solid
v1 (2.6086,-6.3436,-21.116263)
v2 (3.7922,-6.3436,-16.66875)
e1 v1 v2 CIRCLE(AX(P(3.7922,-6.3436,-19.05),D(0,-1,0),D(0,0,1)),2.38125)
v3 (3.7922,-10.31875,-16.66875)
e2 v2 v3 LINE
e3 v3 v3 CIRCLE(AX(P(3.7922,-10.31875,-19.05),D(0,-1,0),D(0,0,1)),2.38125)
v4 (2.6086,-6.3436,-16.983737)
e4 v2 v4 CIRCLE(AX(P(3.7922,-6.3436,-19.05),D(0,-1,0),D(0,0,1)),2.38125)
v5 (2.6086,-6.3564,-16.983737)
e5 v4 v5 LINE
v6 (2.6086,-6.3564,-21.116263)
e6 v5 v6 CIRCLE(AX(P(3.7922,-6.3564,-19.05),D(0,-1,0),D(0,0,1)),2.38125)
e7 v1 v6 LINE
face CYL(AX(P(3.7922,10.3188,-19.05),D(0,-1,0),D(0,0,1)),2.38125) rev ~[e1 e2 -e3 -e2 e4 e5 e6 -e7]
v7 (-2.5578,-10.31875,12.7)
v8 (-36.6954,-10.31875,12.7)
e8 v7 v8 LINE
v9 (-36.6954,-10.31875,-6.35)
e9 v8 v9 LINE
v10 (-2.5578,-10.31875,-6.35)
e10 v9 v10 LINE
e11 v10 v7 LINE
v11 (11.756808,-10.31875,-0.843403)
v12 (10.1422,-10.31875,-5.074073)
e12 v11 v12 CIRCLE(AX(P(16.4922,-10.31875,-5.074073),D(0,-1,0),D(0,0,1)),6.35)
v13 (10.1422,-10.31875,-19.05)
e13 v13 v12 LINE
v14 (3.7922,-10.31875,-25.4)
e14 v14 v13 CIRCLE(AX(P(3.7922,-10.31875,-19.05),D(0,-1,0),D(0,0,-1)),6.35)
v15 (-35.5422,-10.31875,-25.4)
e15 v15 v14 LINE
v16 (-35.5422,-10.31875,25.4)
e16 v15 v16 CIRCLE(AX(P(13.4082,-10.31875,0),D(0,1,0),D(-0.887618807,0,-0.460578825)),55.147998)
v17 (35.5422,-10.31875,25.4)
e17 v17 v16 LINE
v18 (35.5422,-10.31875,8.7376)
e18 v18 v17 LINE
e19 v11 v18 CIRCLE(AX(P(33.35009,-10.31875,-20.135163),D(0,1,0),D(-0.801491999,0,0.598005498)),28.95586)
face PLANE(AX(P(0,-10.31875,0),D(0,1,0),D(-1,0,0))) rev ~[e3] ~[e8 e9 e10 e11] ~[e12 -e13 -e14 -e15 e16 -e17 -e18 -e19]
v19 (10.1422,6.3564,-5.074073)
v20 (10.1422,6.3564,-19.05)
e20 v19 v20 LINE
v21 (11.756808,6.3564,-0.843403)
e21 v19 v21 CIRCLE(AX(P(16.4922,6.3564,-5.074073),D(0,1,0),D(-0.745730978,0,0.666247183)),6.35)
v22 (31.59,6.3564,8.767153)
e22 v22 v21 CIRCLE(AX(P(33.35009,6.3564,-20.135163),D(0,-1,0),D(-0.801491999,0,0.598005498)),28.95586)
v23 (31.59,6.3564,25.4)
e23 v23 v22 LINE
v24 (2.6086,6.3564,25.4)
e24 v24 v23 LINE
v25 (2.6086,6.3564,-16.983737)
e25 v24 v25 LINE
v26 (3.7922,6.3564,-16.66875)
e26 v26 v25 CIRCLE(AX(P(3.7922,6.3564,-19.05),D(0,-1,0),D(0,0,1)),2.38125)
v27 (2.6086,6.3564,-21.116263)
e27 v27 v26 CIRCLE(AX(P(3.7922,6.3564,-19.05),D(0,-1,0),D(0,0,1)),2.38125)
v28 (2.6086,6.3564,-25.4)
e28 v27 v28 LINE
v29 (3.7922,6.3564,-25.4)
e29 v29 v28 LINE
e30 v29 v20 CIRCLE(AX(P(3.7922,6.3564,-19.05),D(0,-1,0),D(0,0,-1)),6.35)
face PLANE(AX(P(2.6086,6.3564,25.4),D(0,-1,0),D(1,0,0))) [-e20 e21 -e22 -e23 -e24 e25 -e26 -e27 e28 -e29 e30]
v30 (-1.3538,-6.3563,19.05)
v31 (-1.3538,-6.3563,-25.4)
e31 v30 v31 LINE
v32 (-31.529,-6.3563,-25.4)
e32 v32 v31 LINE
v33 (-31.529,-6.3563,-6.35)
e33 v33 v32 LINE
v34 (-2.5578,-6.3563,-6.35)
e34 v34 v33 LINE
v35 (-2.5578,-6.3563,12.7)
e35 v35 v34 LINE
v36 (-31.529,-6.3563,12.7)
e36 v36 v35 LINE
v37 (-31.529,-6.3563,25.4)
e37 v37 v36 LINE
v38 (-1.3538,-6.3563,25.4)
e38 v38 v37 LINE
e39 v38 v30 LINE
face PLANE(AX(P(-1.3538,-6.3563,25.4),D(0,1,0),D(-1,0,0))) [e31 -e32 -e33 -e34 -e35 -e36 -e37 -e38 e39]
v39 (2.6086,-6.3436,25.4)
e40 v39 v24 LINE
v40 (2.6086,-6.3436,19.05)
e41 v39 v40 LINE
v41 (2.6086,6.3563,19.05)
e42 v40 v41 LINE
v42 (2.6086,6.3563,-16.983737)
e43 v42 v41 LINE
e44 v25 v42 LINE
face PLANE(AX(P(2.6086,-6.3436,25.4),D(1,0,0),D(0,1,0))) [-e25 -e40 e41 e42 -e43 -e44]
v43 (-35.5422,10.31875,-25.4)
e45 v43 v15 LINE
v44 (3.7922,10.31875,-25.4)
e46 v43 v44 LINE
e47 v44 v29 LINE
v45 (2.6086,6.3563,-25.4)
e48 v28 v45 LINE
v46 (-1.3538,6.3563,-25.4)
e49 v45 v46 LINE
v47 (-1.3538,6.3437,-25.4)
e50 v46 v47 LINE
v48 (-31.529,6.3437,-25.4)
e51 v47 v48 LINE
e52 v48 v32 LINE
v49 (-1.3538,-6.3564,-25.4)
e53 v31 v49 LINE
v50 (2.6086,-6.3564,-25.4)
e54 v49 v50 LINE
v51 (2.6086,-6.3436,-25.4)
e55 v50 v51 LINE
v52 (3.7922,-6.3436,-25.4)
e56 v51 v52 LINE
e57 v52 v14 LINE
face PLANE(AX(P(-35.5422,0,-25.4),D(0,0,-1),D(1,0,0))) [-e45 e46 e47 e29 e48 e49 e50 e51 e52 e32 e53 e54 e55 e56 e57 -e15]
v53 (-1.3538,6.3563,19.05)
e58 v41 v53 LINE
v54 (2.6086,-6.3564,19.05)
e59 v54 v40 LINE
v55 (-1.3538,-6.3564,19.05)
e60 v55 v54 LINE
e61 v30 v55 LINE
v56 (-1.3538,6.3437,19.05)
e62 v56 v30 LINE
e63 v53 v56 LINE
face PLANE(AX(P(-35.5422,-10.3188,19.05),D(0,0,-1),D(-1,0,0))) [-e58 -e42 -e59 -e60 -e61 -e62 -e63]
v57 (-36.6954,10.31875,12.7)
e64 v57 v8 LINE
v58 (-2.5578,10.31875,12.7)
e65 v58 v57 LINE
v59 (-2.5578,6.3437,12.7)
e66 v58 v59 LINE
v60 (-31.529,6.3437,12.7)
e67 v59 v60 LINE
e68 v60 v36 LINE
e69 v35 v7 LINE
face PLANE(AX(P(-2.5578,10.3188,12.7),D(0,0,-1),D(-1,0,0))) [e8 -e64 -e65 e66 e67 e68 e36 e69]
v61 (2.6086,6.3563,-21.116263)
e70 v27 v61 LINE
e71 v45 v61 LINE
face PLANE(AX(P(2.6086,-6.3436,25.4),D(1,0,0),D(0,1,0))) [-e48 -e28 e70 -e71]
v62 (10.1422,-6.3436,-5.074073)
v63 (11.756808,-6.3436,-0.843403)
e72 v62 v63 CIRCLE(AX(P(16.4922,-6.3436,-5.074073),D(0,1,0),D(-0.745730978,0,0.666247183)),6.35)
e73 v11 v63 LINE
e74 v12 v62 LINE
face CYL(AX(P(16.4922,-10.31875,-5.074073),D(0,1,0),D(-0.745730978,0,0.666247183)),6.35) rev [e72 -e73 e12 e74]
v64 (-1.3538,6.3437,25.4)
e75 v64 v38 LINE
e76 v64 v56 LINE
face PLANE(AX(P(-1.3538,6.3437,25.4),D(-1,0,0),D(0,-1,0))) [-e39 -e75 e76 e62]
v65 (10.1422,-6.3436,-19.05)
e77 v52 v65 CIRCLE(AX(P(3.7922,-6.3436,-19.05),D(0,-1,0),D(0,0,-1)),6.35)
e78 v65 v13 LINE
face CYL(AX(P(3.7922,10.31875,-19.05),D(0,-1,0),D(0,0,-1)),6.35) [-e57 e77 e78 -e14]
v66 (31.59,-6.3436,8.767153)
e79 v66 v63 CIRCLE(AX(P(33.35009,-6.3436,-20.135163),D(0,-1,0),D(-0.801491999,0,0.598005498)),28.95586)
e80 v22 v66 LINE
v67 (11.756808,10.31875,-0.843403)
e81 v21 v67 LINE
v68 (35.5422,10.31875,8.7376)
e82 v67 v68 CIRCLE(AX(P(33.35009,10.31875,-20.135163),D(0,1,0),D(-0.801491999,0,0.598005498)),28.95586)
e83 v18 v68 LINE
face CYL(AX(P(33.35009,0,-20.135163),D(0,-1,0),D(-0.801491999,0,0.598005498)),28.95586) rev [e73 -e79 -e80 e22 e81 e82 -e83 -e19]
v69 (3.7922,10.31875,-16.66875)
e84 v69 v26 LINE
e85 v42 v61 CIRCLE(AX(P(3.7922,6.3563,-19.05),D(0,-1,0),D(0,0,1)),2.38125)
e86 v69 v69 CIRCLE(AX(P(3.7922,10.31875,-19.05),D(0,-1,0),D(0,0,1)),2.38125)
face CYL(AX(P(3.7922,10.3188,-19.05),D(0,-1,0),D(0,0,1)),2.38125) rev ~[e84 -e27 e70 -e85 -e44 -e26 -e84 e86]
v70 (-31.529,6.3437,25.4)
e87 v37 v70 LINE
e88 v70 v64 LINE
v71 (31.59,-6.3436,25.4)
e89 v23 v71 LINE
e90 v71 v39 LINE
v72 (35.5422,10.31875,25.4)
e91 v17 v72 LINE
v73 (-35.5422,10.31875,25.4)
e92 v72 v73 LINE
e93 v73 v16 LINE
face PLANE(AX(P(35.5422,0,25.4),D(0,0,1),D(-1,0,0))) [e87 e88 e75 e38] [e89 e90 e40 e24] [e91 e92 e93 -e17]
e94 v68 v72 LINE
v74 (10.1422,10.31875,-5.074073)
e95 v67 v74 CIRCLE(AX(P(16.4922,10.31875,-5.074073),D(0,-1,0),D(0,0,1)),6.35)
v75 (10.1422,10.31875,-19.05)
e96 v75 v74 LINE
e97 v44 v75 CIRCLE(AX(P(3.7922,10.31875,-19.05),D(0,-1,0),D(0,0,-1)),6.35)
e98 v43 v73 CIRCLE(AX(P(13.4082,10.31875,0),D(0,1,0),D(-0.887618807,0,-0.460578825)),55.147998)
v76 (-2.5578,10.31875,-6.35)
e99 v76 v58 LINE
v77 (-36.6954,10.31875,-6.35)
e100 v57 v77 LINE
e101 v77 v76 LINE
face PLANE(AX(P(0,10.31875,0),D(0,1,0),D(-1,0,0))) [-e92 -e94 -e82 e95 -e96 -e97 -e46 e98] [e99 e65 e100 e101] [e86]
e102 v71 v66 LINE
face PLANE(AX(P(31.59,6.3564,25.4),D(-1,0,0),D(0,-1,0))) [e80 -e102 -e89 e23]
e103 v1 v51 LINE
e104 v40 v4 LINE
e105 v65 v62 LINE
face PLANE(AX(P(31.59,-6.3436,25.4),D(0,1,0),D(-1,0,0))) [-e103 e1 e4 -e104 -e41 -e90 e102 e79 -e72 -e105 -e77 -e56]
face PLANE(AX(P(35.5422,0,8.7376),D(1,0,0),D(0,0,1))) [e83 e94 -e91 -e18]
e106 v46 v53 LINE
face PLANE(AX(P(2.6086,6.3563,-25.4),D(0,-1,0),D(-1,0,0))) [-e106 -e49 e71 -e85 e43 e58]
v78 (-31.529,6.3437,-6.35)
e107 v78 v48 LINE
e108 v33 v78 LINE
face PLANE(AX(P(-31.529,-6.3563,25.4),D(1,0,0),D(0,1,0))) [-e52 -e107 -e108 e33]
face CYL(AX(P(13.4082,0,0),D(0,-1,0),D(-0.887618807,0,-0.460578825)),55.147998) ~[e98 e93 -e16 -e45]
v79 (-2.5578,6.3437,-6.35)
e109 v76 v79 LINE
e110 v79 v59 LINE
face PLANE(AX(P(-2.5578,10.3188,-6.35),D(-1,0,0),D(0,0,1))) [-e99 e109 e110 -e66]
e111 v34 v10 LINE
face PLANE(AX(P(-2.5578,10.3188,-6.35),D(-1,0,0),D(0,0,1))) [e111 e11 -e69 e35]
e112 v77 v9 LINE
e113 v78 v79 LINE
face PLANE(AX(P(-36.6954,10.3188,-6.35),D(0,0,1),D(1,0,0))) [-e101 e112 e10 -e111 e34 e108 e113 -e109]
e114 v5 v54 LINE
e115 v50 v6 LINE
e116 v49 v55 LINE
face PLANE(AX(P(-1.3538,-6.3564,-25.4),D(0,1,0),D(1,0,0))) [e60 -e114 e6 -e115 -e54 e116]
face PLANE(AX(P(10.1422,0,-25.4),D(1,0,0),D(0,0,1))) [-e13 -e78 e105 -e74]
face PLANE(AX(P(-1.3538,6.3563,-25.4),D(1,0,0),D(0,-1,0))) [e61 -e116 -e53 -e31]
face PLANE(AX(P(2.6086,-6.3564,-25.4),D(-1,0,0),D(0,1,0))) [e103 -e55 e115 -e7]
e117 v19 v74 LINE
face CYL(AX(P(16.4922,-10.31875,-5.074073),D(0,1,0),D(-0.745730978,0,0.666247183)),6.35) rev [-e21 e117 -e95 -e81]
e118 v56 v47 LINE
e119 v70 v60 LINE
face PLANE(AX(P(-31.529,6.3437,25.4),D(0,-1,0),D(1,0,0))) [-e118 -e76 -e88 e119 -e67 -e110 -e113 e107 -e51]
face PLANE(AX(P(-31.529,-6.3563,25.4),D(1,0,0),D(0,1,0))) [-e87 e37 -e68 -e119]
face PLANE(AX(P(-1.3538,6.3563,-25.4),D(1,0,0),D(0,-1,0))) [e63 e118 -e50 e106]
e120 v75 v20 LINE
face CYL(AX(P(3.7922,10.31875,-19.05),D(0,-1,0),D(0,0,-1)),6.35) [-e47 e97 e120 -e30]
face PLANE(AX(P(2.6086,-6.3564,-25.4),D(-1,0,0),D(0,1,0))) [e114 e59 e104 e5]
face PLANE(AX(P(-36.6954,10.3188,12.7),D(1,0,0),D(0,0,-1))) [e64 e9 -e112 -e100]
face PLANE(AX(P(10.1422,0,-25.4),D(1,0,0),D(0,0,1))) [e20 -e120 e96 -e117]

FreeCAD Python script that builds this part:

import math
import FreeCAD as App
import Part
import Sketcher
from FreeCAD import Vector
Q = App.Units.Quantity


def edges_at(feature, points):
    """Names of the edges that pass closest to the given points."""
    edges = feature.Shape.Edges
    near = lambda p: min(range(len(edges)), key=lambda i: edges[i].distToShape(Part.Vertex(*p))[0])
    return sorted({f"Edge{near(p) + 1}" for p in points})


def add_polygon(sketch, points):
    """Adds a closed chain of lines whose ends are joined by coincident constraints."""
    first, n = sketch.GeometryCount, len(points)
    for a, b in zip(points, points[1:] + points[:1]):
        sketch.addGeometry(Part.LineSegment(App.Vector(*a, 0), App.Vector(*b, 0)), False)
    for i in range(n):
        sketch.addConstraint(Sketcher.Constraint("Coincident", first + i, 2, first + (i + 1) % n, 1))

doc = App.newDocument("Part")
body = doc.addObject("PartDesign::Body", "Body")

sketch1 = body.newObject("Sketcher::SketchObject", "Sketch")
sketch1.AttachmentSupport = (doc.getObject("XZ_Plane"), [""])
sketch1.MapMode = "FlatFace"
sketch1.addGeometry([
    Part.LineSegment(Vector(-35.5422, 25.4, 0), Vector(35.5422, 25.4, 0)),
    Part.LineSegment(Vector(35.5422, 25.4, 0), Vector(35.5422, 8.7376, 0)),
    Part.ArcOfCircle(Part.Circle(Vector(33.3502, -20.1353, 0), Vector(0, 0, 1), 28.95603), math.radians(85.658493), math.radians(143.272728)),
    Part.LineSegment(Vector(10.1422, -2.8194, 0), Vector(10.1422, -25.4, 0)),
    Part.LineSegment(Vector(10.1422, -25.4, 0), Vector(-35.5422, -25.4, 0)),
    Part.ArcOfCircle(Part.Circle(Vector(13.4082, 0, 0), Vector(0, 0, 1), 55.147998), math.radians(152.575536), math.radians(207.424464)),
], False)
sketch1.addConstraint([
    Sketcher.Constraint("Coincident", 0, 2, 1, 1),
    Sketcher.Constraint("Coincident", 1, 2, 2, 1),
    Sketcher.Constraint("Coincident", 2, 2, 3, 1),
    Sketcher.Constraint("Coincident", 3, 2, 4, 1),
    Sketcher.Constraint("Coincident", 4, 2, 5, 2),
    Sketcher.Constraint("Coincident", 5, 1, 0, 1),
    Sketcher.Constraint("Horizontal", 0),
    Sketcher.Constraint("Vertical", 1),
    Sketcher.Constraint("Vertical", 3),
    Sketcher.Constraint("Horizontal", 4),
    Sketcher.Constraint("Symmetric", 0, 2, 4, 2, -1, 1),
    Sketcher.Constraint("PointOnObject", 5, 3, -1),
    Sketcher.Constraint("Radius", 2, Q("1.14 in")),
    Sketcher.Constraint("DistanceY", 3, 2, 0, 2, Q("2 in")),
    Sketcher.Constraint("DistanceY", 1, 2, 1, 1, Q("0.656 in")),
    Sketcher.Constraint("DistanceY", 3, 2, 3, 1, Q("0.889 in")),
    Sketcher.Constraint("DistanceX", 0, 1, 0, 2, Q("2.7986 in")),
    Sketcher.Constraint("DistanceX", 4, 2, 4, 1, Q("1.7986 in")),
    Sketcher.Constraint("Radius", 5, Q("55.148 mm")),
])
pad1 = body.newObject("PartDesign::Pad", "Pad")
pad1.Profile = sketch1
pad1.Length = Q("0.8125 in")
pad1.Midplane = True
doc.recompute()

fillet = body.newObject("PartDesign::Fillet", "Fillet")
fillet.Base = (pad1, edges_at(pad1, [(10.142, 0, -25.4), (10.142, 0, -2.819)]))
fillet.Radius = Q("0.25 in")

sketch2 = body.newObject("Sketcher::SketchObject", "Sketch001")
sketch2.AttachmentSupport = (doc.getObject("XZ_Plane"), [""])
sketch2.MapMode = "FlatFace"
sketch2.AttachmentOffset = App.Placement(Vector(0, 0, -0.406252 * 25.4), App.Rotation())
add_polygon(sketch2, [(-2.5578, -6.35), (-36.6954, -6.35), (-36.6954, 12.7), (-2.5578, 12.7)])
sketch2.addConstraint([
    Sketcher.Constraint("Horizontal", 0),
    Sketcher.Constraint("Vertical", 1),
    Sketcher.Constraint("Horizontal", 2),
    Sketcher.Constraint("Vertical", 3),
    Sketcher.Constraint("DistanceY", 1, 1, 1, 2, Q("0.75 in")),
    Sketcher.Constraint("DistanceX", 0, 2, 0, 1, Q("1.344 in")),
    Sketcher.Constraint("DistanceY", -1, 1, 1, 2, Q("0.5 in")),
    Sketcher.Constraint("DistanceX", 0, 2, -1, 1, Q("1.4447 in")),
])
pocket1 = body.newObject("PartDesign::Pocket", "Pocket")
pocket1.Profile = sketch2
pocket1.Type = "ThroughAll"
pocket1.Reversed = True

sketch3 = body.newObject("Sketcher::SketchObject", "Sketch002")
sketch3.AttachmentSupport = (doc.getObject("XY_Plane"), [""])
sketch3.MapMode = "FlatFace"
sketch3.AttachmentOffset = App.Placement(Vector(0, 0, 1 * 25.4), App.Rotation())
add_polygon(sketch3, [(-1.3538, 6.3437), (-31.529, 6.3437), (-31.529, -6.3563), (-1.3538, -6.3563)])
add_polygon(sketch3, [(31.59, 6.3564), (2.6086, 6.3564), (2.6086, -6.3436), (31.59, -6.3436)])
sketch3.addConstraint([
    Sketcher.Constraint("Horizontal", 0),
    Sketcher.Constraint("Vertical", 1),
    Sketcher.Constraint("Horizontal", 2),
    Sketcher.Constraint("Vertical", 3),
    Sketcher.Constraint("Horizontal", 4),
    Sketcher.Constraint("Vertical", 5),
    Sketcher.Constraint("Horizontal", 6),
    Sketcher.Constraint("Vertical", 7),
    Sketcher.Constraint("Equal", 3, 5),
    Sketcher.Constraint("DistanceY", 1, 2, 1, 1, Q("0.5 in")),
    Sketcher.Constraint("DistanceX", 0, 2, 0, 1, Q("1.188 in")),
    Sketcher.Constraint("DistanceX", 4, 2, 4, 1, Q("1.141 in")),
    Sketcher.Constraint("DistanceX", 3, 2, 4, 2, Q("0.156 in")),
    Sketcher.Constraint("DistanceX", 0, 2, -1, 1, Q("1.2413 in")),
    Sketcher.Constraint("DistanceY", 3, 2, 4, 2, Q("0.0005 in")),
    Sketcher.Constraint("DistanceY", -1, 1, 0, 2, Q("6.3437 mm")),
])
pocket2 = body.newObject("PartDesign::Pocket", "Pocket001")
pocket2.Profile = sketch3
pocket2.Type = "ThroughAll"

sketch4 = body.newObject("Sketcher::SketchObject", "Sketch003")
sketch4.AttachmentSupport = (doc.getObject("XY_Plane"), [""])
sketch4.MapMode = "FlatFace"
sketch4.AttachmentOffset = App.Placement(Vector(0, 0, -1 * 25.4), App.Rotation())
add_polygon(sketch4, [(-1.3538, 6.3563), (2.6086, 6.3563), (2.6086, -6.3564), (-1.3538, -6.3564)])
sketch4.addConstraint([
    Sketcher.Constraint("Horizontal", 0),
    Sketcher.Constraint("Vertical", 1),
    Sketcher.Constraint("Horizontal", 2),
    Sketcher.Constraint("Vertical", 3),
    Sketcher.Constraint("DistanceX", 0, 1, 0, 2, Q("0.156 in")),
    Sketcher.Constraint("DistanceY", 1, 2, 1, 1, Q("0.5005 in")),
    Sketcher.Constraint("DistanceX", -1, 1, 0, 2, Q("0.1027 in")),
    Sketcher.Constraint("DistanceY", -1, 1, 0, 2, Q("6.3563 mm")),
])
pocket3 = body.newObject("PartDesign::Pocket", "Pocket002")
pocket3.Profile = sketch4
pocket3.Length = Q("1.75 in")
pocket3.Reversed = True

sketch5 = body.newObject("Sketcher::SketchObject", "Sketch004")
sketch5.AttachmentSupport = (doc.getObject("XZ_Plane"), [""])
sketch5.MapMode = "FlatFace"
sketch5.AttachmentOffset = App.Placement(Vector(0, 0, -0.406252 * 25.4), App.Rotation())
sketch5.addGeometry(Part.Circle(Vector(3.7922, -19.05, 0), Vector(0, 0, 1), 2.38125), False)
sketch5.addConstraint([
    Sketcher.Constraint("Diameter", 0, Q("0.1875 in")),
    Sketcher.Constraint("DistanceY", 0, 3, -1, 1, Q("0.75 in")),
    Sketcher.Constraint("DistanceX", -1, 1, 0, 3, Q("0.1493 in")),
])
doc.recompute()
hole = body.newObject("PartDesign::Hole", "Hole")
hole.Profile = sketch5
hole.ThreadType = "None"
hole.Diameter = Q("0.1875 in")
hole.DepthType = "ThroughAll"
hole.Reversed = True

doc.recompute()
